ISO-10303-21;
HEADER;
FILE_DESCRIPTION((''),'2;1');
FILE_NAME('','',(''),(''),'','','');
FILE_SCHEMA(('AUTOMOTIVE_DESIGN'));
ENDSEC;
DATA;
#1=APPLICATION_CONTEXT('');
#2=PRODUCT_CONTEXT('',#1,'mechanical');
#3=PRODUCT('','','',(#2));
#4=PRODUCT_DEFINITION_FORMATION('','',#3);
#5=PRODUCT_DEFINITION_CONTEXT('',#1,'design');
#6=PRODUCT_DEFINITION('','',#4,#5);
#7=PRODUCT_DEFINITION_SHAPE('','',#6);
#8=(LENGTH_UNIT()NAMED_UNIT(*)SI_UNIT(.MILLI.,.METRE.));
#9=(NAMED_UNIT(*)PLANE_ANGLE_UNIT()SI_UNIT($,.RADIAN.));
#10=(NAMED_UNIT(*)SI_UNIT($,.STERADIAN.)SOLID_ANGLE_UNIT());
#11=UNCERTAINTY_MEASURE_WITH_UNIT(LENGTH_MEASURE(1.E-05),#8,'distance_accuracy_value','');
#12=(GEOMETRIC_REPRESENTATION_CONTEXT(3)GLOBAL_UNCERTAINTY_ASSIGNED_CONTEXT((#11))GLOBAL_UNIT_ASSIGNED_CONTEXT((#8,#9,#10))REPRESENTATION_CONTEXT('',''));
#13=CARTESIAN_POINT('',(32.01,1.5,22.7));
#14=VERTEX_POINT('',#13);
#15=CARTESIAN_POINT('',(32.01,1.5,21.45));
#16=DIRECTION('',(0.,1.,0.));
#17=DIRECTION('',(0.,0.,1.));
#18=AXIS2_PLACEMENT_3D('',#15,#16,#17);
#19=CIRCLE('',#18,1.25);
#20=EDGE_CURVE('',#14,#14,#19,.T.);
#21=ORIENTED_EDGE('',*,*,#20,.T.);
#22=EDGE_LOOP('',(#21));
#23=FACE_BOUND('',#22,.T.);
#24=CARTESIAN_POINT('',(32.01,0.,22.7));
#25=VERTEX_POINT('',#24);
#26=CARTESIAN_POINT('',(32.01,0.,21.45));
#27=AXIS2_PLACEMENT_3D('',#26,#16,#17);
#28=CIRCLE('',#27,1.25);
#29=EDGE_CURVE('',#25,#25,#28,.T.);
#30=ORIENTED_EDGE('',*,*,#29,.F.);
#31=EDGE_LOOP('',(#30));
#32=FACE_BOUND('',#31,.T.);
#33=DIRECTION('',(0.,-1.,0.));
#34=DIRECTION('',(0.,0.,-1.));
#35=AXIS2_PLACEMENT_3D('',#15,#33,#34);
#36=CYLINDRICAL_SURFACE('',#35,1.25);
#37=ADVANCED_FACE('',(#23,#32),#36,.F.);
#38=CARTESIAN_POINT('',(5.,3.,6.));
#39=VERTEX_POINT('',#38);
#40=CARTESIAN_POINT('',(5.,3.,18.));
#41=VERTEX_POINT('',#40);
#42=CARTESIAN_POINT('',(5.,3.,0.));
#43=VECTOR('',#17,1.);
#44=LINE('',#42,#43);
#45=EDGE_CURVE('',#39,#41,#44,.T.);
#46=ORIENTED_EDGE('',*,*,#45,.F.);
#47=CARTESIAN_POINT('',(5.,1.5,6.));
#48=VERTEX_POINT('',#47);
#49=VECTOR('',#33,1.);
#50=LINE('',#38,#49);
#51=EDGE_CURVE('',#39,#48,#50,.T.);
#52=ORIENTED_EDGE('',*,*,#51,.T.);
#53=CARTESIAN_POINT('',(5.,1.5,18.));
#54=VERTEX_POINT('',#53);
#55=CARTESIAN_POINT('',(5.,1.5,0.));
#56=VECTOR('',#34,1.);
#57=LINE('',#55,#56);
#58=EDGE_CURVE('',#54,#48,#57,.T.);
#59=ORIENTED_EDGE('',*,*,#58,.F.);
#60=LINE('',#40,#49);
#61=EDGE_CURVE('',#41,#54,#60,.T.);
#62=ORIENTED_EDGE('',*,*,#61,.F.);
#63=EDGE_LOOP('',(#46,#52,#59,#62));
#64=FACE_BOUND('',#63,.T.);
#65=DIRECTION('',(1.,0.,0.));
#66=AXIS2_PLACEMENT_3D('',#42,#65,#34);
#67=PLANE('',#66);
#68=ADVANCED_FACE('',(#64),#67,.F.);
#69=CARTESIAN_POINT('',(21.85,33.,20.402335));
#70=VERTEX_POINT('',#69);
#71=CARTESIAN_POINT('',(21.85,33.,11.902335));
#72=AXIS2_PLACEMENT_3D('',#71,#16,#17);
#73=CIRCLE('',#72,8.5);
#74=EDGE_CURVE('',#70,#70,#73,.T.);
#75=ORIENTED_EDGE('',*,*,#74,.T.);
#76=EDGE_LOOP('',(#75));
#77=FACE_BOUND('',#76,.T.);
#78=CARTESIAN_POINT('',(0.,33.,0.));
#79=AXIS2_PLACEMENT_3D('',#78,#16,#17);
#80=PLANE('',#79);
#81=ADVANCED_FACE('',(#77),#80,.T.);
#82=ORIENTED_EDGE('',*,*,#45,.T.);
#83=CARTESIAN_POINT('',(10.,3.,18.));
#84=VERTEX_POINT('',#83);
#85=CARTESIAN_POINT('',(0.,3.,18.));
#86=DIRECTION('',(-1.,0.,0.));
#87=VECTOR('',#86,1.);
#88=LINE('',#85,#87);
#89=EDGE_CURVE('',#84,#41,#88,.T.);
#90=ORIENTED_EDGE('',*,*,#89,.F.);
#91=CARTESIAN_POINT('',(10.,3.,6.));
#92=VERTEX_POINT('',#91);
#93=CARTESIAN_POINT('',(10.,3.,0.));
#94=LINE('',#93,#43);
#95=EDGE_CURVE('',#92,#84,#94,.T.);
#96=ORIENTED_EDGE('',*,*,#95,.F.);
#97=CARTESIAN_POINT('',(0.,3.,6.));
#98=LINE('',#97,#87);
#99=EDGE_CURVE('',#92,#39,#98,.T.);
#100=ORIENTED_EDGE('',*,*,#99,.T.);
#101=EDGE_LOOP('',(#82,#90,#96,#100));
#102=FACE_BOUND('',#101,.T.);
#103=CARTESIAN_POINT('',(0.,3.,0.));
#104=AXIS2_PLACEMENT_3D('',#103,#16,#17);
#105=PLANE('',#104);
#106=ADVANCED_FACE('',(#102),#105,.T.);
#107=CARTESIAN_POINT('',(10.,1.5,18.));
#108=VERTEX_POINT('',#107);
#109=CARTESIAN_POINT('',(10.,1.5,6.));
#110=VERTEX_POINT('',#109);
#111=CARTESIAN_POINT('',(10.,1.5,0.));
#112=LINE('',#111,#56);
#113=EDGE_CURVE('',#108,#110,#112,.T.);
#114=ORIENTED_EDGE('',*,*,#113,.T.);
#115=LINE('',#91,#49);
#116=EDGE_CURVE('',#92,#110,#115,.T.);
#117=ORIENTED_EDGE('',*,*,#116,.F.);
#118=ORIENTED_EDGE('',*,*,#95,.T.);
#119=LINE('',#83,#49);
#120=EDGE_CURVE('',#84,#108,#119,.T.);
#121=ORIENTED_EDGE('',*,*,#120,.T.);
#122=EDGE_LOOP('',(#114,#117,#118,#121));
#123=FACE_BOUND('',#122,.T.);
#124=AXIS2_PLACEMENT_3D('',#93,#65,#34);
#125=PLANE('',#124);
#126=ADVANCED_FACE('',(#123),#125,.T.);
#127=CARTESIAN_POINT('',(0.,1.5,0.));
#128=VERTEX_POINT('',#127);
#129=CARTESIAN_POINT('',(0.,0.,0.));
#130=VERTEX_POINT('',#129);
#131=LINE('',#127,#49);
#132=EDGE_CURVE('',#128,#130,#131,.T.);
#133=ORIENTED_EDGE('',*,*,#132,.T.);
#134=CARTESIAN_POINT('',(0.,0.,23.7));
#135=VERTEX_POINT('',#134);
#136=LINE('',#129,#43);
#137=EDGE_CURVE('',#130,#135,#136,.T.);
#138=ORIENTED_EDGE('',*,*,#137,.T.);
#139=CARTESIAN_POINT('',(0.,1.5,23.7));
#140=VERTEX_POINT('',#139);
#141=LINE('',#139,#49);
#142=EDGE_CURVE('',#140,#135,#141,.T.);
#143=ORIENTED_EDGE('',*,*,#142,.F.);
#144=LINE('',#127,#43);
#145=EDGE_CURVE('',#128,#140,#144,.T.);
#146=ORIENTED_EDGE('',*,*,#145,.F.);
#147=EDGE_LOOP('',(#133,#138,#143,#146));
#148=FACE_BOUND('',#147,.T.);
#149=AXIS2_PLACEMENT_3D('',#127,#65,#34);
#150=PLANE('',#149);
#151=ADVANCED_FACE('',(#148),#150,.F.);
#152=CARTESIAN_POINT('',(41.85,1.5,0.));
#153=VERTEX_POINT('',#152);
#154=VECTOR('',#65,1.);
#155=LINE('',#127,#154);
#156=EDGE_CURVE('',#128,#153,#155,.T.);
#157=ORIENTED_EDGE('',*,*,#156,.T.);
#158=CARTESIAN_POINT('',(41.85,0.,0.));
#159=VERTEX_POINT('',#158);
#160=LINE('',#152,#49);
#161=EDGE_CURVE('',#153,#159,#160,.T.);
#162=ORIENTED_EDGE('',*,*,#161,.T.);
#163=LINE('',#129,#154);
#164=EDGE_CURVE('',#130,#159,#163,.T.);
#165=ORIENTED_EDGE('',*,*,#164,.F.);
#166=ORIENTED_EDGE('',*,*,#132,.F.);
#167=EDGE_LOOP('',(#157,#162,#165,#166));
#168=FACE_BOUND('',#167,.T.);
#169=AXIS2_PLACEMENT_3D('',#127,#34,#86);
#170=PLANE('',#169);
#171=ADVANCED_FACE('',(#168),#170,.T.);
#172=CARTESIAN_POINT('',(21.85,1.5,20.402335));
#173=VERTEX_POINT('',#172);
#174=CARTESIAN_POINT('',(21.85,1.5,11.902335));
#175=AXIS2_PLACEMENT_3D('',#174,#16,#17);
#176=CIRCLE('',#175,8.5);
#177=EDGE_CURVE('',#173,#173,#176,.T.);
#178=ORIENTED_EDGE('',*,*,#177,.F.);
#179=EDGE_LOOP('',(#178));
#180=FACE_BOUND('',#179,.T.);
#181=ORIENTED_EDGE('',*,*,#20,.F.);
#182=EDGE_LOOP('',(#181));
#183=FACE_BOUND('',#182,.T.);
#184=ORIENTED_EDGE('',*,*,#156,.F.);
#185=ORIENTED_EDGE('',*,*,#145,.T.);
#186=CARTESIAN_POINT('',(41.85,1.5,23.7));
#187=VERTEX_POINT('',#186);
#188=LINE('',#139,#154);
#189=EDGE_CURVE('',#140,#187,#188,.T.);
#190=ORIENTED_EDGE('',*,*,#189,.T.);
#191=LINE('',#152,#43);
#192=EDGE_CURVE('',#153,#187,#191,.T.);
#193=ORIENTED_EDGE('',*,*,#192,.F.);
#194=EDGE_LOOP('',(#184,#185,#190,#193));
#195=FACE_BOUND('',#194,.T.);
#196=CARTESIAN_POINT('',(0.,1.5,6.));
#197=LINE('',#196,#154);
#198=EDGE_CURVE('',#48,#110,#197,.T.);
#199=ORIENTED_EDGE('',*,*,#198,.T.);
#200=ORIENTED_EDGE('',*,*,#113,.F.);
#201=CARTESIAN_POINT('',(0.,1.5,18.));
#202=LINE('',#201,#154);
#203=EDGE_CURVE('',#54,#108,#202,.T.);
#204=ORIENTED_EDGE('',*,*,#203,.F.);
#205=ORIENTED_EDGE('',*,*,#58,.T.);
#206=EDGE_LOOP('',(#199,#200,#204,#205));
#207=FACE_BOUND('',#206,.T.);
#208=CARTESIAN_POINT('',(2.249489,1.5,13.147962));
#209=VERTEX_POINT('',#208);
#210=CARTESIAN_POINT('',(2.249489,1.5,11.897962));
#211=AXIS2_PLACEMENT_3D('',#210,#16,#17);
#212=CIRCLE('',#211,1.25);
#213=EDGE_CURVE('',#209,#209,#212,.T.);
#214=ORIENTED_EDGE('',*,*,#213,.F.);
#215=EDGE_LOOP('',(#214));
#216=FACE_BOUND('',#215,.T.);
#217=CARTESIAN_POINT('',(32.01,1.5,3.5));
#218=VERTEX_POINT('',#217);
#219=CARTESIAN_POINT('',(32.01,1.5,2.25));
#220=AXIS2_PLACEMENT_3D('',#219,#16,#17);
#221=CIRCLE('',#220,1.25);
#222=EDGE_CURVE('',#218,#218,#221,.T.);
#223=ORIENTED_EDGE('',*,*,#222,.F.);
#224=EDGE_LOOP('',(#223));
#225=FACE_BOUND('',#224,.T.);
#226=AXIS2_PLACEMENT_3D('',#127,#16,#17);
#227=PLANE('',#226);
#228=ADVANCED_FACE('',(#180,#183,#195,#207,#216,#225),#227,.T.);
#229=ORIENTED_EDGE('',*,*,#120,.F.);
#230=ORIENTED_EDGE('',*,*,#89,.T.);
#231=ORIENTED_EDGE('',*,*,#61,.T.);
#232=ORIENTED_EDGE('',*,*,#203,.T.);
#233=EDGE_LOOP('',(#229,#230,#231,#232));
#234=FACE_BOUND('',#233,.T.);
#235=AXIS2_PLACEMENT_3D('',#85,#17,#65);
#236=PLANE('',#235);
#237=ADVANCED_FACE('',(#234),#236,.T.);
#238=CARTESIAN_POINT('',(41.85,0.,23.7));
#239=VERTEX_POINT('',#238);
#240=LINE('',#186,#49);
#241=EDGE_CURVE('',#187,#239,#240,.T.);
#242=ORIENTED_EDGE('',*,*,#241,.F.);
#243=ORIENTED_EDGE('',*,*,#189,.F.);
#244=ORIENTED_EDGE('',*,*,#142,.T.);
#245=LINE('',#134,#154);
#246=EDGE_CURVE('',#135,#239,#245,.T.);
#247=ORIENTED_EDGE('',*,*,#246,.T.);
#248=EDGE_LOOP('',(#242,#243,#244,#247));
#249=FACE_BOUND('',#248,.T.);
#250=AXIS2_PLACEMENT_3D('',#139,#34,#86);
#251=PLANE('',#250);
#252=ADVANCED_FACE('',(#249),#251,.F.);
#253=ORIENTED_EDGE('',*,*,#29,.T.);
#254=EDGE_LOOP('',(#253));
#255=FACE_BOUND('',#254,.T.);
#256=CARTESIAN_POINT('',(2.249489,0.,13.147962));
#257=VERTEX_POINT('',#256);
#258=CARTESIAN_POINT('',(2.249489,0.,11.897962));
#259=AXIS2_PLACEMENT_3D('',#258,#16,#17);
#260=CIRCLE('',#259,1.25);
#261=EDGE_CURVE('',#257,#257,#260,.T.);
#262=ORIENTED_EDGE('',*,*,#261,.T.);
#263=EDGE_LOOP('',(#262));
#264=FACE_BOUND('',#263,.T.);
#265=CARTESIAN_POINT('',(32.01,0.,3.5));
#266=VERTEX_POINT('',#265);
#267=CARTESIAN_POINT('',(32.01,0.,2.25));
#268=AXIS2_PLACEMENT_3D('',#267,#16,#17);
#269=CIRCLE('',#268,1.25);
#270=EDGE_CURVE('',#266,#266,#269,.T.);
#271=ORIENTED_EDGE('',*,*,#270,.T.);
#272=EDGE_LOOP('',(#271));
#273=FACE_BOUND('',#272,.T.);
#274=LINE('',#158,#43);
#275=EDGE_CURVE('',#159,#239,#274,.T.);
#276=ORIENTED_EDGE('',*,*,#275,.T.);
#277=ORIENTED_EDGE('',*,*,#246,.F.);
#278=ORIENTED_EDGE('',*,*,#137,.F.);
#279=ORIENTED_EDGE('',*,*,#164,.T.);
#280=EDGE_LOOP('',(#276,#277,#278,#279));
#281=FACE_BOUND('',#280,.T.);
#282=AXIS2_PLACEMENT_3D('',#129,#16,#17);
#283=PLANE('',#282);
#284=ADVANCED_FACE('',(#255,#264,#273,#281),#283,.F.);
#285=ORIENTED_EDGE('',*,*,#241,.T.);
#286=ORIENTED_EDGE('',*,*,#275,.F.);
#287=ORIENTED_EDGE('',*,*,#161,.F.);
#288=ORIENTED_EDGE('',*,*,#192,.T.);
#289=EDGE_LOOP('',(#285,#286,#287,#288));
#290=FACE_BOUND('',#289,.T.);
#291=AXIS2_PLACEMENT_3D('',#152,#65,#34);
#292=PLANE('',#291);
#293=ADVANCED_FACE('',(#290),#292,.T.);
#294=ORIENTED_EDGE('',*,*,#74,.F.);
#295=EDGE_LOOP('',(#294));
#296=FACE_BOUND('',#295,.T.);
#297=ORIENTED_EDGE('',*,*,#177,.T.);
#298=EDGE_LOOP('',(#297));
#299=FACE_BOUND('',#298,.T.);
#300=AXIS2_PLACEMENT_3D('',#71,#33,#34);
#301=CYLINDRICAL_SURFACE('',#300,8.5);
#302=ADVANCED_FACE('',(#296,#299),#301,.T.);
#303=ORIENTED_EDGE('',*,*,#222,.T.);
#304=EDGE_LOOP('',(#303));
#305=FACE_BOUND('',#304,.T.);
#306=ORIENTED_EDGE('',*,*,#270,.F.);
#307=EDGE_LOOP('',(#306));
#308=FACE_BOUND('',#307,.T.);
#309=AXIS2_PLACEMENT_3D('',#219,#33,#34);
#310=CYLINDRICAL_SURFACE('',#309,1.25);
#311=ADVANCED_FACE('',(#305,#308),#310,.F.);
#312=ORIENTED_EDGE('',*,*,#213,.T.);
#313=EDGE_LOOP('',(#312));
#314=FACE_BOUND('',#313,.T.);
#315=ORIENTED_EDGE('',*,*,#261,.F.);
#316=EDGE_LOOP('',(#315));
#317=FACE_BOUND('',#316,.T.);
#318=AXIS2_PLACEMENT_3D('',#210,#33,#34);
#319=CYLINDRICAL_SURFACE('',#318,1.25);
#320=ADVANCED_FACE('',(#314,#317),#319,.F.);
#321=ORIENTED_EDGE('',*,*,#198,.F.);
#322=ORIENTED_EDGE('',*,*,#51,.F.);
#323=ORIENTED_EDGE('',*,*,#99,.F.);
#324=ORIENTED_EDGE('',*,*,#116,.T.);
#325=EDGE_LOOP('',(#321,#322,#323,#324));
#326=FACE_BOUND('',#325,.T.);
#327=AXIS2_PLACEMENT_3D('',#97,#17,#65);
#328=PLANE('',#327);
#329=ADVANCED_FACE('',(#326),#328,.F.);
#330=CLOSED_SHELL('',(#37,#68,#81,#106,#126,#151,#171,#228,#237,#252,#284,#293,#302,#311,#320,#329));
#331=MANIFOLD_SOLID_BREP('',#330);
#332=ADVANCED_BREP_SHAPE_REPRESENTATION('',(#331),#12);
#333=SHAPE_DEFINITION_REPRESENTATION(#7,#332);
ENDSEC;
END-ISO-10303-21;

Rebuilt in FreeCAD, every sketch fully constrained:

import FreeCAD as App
import Part
import Sketcher

V = App.Vector


def add_polygon(sketch, points):
    """Adds a closed chain of lines whose ends are joined by coincident constraints."""
    first, n = sketch.GeometryCount, len(points)
    for a, b in zip(points, points[1:] + points[:1]):
        sketch.addGeometry(Part.LineSegment(App.Vector(*a, 0), App.Vector(*b, 0)), False)
    for i in range(n):
        sketch.addConstraint(Sketcher.Constraint("Coincident", first + i, 2, first + (i + 1) % n, 1))

doc = App.newDocument("Part")
body = doc.addObject("PartDesign::Body", "Body")

sketch1 = body.newObject("Sketcher::SketchObject", "Sketch")
sketch1.AttachmentSupport = (doc.getObject("XZ_Plane"), [""])
sketch1.MapMode = "FlatFace"
add_polygon(sketch1, [(0, 0), (0, 23.7), (41.9, 23.7), (41.9, 0)])
sketch1.addGeometry(Part.Circle(V(2.2, 11.9, 0), V(0, 0, 1), 1.2), False)
sketch1.addGeometry(Part.Circle(V(32, 21.4, 0), V(0, 0, 1), 1.2), False)
sketch1.addGeometry(Part.Circle(V(21.9, 11.9, 0), V(0, 0, 1), 8.5), False)
sketch1.addGeometry(Part.Circle(V(32, 2.2, 0), V(0, 0, 1), 1.2), False)
sketch1.addConstraint(Sketcher.Constraint("Vertical", 0))
sketch1.addConstraint(Sketcher.Constraint("Horizontal", 1))
sketch1.addConstraint(Sketcher.Constraint("Vertical", 2))
sketch1.addConstraint(Sketcher.Constraint("Horizontal", 3))
sketch1.addConstraint(Sketcher.Constraint("Coincident", 3, 2, -1, 1))
sketch1.addConstraint(Sketcher.Constraint("Equal", 4, 5))
sketch1.addConstraint(Sketcher.Constraint("Equal", 5, 7))
sketch1.addConstraint(Sketcher.Constraint("Vertical", 5, 3, 7, 3))
sketch1.addConstraint(Sketcher.Constraint("Diameter", 6, 17.0))
sketch1.addConstraint(Sketcher.Constraint("Diameter", 4, 2.5))
sketch1.addConstraint(Sketcher.Constraint("DistanceY", 0, 1, 0, 2, 23.7))
sketch1.addConstraint(Sketcher.Constraint("DistanceX", 6, 3, 1, 2, 20.0))
sketch1.addConstraint(Sketcher.Constraint("DistanceX", 1, 1, 1, 2, 41.85))
sketch1.addConstraint(Sketcher.Constraint("DistanceY", 7, 3, 5, 3, 19.2))
sketch1.addConstraint(Sketcher.Constraint("DistanceX", -1, 1, 5, 3, 32.01))
sketch1.addConstraint(Sketcher.Constraint("DistanceY", -1, 1, 5, 3, 21.45))
sketch1.addConstraint(Sketcher.Constraint("DistanceX", -1, 1, 4, 3, 2.249489))
sketch1.addConstraint(Sketcher.Constraint("DistanceY", -1, 1, 4, 3, 11.897962))
sketch1.addConstraint(Sketcher.Constraint("DistanceY", -1, 1, 6, 3, 11.902335))
pad1 = body.newObject("PartDesign::Pad", "Pad")
pad1.Profile = sketch1
pad1.Length = 1.5
pad1.Reversed = True

sketch2 = body.newObject("Sketcher::SketchObject", "Sketch001")
sketch2.AttachmentSupport = (doc.getObject("XZ_Plane"), [""])
sketch2.MapMode = "FlatFace"
sketch2.addGeometry(Part.Circle(V(22, 12, 0), V(0, 0, 1), 8), False)
sketch2.addConstraint(Sketcher.Constraint("Diameter", 0, 17.0))
sketch2.addConstraint(Sketcher.Constraint("DistanceX", -1, 1, 0, 3, 21.85))
sketch2.addConstraint(Sketcher.Constraint("DistanceY", -1, 1, 0, 3, 11.902335))
pad2 = body.newObject("PartDesign::Pad", "Pad001")
pad2.Profile = sketch2
pad2.Length = 33
pad2.Reversed = True

sketch3 = body.newObject("Sketcher::SketchObject", "Sketch002")
sketch3.AttachmentSupport = (doc.getObject("XZ_Plane"), [""])
sketch3.MapMode = "FlatFace"
add_polygon(sketch3, [(5, 6), (5, 18), (10, 18), (10, 6)])
sketch3.addConstraint(Sketcher.Constraint("Vertical", 0))
sketch3.addConstraint(Sketcher.Constraint("Horizontal", 1))
sketch3.addConstraint(Sketcher.Constraint("Vertical", 2))
sketch3.addConstraint(Sketcher.Constraint("Horizontal", 3))
sketch3.addConstraint(Sketcher.Constraint("DistanceX", 1, 1, 1, 2, 5.0))
sketch3.addConstraint(Sketcher.Constraint("DistanceY", 0, 1, 0, 2, 12.0))
sketch3.addConstraint(Sketcher.Constraint("DistanceX", -1, 1, 0, 2, 5.0))
sketch3.addConstraint(Sketcher.Constraint("DistanceY", -1, 1, 0, 2, 18.0))
pad3 = body.newObject("PartDesign::Pad", "Pad002")
pad3.Profile = sketch3
pad3.Length = 3
pad3.Reversed = True

doc.recompute()
